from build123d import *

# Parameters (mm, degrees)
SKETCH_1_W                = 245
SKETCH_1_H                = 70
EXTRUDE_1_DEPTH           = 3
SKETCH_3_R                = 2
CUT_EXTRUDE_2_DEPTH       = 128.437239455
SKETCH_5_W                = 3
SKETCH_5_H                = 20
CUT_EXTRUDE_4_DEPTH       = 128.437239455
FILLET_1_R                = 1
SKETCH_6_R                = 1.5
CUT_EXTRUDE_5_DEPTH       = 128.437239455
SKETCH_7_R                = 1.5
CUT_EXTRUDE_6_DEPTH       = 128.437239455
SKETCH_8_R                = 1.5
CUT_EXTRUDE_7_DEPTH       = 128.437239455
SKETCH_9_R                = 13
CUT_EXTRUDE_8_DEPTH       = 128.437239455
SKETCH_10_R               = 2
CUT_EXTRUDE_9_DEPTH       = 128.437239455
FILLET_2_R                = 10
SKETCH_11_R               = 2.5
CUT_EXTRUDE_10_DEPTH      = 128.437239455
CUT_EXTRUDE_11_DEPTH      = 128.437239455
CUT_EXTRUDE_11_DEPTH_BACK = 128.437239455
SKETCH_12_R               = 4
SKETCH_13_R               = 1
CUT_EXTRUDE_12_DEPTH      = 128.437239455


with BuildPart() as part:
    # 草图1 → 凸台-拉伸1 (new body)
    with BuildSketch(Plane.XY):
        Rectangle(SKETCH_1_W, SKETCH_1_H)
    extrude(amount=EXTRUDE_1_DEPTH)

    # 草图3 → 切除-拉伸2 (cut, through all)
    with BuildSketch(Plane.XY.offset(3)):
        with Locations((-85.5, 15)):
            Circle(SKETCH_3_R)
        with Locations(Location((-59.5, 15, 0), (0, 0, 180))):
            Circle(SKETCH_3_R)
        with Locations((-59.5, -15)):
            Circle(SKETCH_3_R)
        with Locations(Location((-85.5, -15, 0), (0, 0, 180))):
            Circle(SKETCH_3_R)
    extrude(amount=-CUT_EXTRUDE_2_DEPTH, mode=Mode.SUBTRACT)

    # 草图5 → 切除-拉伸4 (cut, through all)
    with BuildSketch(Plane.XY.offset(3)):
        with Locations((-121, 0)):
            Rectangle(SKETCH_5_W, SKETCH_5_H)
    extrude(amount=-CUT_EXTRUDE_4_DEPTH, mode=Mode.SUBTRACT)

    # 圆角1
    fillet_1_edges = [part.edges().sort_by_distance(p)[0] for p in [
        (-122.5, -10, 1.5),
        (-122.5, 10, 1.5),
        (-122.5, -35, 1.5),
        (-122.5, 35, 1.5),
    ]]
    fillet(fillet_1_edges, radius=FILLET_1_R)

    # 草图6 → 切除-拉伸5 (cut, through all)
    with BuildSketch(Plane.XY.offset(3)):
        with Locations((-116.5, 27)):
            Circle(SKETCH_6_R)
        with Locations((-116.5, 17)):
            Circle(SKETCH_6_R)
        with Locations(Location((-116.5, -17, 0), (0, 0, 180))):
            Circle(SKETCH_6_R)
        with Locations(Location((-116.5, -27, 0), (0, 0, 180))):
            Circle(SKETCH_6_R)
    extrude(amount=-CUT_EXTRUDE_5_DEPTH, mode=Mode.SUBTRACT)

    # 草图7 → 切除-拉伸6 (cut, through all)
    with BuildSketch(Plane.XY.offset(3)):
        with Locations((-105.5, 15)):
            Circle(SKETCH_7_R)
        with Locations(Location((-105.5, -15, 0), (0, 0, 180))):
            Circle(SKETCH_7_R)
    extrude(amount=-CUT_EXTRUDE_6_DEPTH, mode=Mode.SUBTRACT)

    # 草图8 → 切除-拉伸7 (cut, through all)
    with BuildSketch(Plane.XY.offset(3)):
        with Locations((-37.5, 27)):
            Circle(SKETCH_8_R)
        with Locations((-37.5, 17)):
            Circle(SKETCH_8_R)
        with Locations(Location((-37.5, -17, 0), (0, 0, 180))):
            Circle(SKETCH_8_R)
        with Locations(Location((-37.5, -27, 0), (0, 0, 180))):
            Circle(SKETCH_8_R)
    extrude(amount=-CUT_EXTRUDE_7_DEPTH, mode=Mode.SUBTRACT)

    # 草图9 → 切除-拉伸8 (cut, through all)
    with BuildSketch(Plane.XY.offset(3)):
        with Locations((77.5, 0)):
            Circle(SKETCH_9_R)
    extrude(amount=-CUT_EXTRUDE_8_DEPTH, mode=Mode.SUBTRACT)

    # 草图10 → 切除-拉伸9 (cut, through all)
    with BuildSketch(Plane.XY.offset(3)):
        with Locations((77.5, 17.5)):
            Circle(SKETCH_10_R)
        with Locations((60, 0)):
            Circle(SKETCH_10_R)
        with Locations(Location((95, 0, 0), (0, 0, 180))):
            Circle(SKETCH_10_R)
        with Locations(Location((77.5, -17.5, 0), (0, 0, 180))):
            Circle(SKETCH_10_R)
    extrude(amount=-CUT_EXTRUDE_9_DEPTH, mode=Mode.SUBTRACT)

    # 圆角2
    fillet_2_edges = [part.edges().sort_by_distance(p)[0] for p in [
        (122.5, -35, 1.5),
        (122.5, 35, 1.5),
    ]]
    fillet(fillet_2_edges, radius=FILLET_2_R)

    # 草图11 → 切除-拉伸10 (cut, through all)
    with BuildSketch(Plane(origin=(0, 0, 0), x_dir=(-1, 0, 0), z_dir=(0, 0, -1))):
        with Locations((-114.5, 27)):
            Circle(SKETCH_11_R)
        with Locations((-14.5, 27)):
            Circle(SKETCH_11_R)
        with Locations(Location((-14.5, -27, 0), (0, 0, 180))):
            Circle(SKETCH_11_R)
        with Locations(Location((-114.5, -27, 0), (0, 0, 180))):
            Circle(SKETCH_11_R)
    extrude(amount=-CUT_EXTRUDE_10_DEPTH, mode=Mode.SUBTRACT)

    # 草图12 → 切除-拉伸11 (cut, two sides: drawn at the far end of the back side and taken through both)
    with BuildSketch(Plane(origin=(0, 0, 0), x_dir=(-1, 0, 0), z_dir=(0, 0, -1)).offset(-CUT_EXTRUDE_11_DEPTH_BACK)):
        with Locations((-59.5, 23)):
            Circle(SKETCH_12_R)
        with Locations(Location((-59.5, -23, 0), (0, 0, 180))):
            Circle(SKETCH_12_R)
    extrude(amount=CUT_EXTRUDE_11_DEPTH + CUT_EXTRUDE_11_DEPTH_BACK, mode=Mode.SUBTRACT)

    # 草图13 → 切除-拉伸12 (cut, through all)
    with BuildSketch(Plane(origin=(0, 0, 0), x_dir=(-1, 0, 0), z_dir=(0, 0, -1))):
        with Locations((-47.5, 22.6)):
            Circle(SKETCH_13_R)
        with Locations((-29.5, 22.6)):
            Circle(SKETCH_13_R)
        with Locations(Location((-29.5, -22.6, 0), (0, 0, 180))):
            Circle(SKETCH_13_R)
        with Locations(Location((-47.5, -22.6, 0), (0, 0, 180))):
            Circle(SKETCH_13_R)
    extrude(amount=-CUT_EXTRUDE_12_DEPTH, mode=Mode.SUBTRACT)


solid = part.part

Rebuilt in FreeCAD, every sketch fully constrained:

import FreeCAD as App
import Part
import Sketcher
Q = App.Units.Quantity


def edges_at(feature, points):
    """Names of the edges that pass closest to the given points."""
    edges = feature.Shape.Edges
    near = lambda p: min(range(len(edges)), key=lambda i: edges[i].distToShape(Part.Vertex(*p))[0])
    return sorted({f"Edge{near(p) + 1}" for p in points})

doc = App.newDocument("Part")
params = doc.addObject("Spreadsheet::Sheet", "Params")
for row, (alias, value) in enumerate([
    ("sketch1_width", "245 mm"),
    ("sketch1_height", "70 mm"),
    ("pad1_length", "3 mm"),
    ("sketch2_diameter", "4 mm"),
    ("sketch3_width", "3 mm"),
    ("sketch3_height", "20 mm"),
    ("fillet_radius", "1 mm"),
    ("sketch4_diameter", "3 mm"),
    ("sketch5_diameter", "3 mm"),
    ("sketch6_diameter", "3 mm"),
    ("sketch7_diameter", "26 mm"),
    ("sketch8_diameter", "4 mm"),
    ("fillet2_radius", "10 mm"),
    ("sketch9_diameter", "5 mm"),
    ("sketch10_diameter", "8 mm"),
    ("sketch11_diameter", "2 mm"),
], start=1):
    params.set(f"A{row}", alias)
    params.set(f"B{row}", "=" + value)
    params.setAlias(f"B{row}", alias)

body = doc.addObject("PartDesign::Body", "Body")

# Sketch on XY plane
sketch1 = body.newObject("Sketcher::SketchObject", "Sketch")
sketch1.AttachmentSupport = (doc.getObject("XY_Plane"), [""])
sketch1.MapMode = "FlatFace"
sketch1.addGeometry(Part.LineSegment(App.Vector(-122.5, 35, 0), App.Vector(-122.5, -35, 0)), False)
sketch1.addGeometry(Part.LineSegment(App.Vector(-122.5, -35, 0), App.Vector(122.5, -35, 0)), False)
sketch1.addGeometry(Part.LineSegment(App.Vector(122.5, -35, 0), App.Vector(122.5, 35, 0)), False)
sketch1.addGeometry(Part.LineSegment(App.Vector(122.5, 35, 0), App.Vector(-122.5, 35, 0)), False)
sketch1.addConstraint(Sketcher.Constraint("Coincident", 0, 2, 1, 1))
sketch1.addConstraint(Sketcher.Constraint("Coincident", 1, 2, 2, 1))
sketch1.addConstraint(Sketcher.Constraint("Coincident", 2, 2, 3, 1))
sketch1.addConstraint(Sketcher.Constraint("Coincident", 3, 2, 0, 1))
sketch1.addConstraint(Sketcher.Constraint("Vertical", 0))
sketch1.addConstraint(Sketcher.Constraint("Horizontal", 1))
sketch1.addConstraint(Sketcher.Constraint("Vertical", 2))
sketch1.addConstraint(Sketcher.Constraint("Horizontal", 3))
sketch1.addConstraint(Sketcher.Constraint("Symmetric", 0, 2, 2, 2, -1, 1))
sketch1.addConstraint(Sketcher.Constraint("DistanceX", 1, 1, 1, 2, Q("245 mm")))
sketch1.addConstraint(Sketcher.Constraint("DistanceY", 0, 2, 0, 1, Q("70 mm")))
sketch1.setExpression("Constraints[9]", "Params.sketch1_width")
sketch1.setExpression("Constraints[10]", "Params.sketch1_height")
pad1 = body.newObject("PartDesign::Pad", "Pad")
pad1.Profile = sketch1
pad1.setExpression("Length", "Params.pad1_length")

# Sketch on XY plane
sketch2 = body.newObject("Sketcher::SketchObject", "Sketch001")
sketch2.AttachmentSupport = (doc.getObject("XY_Plane"), [""])
sketch2.MapMode = "FlatFace"
sketch2.AttachmentOffset = App.Placement(App.Vector(0, 0, 3), App.Rotation())
sketch2.addGeometry(Part.Circle(App.Vector(-85.5, 15, 0), App.Vector(0, 0, 1), 2), False)
sketch2.addGeometry(Part.Circle(App.Vector(-59.5, 15, 0), App.Vector(0, 0, 1), 2), False)
sketch2.addGeometry(Part.Circle(App.Vector(-59.5, -15, 0), App.Vector(0, 0, 1), 2), False)
sketch2.addGeometry(Part.Circle(App.Vector(-85.5, -15, 0), App.Vector(0, 0, 1), 2), False)
sketch2.addConstraint(Sketcher.Constraint("Equal", 0, 1))
sketch2.addConstraint(Sketcher.Constraint("Equal", 1, 2))
sketch2.addConstraint(Sketcher.Constraint("Equal", 2, 3))
sketch2.addConstraint(Sketcher.Constraint("Symmetric", 1, 3, 2, 3, -1))
sketch2.addConstraint(Sketcher.Constraint("Symmetric", 0, 3, 3, 3, -1))
sketch2.addConstraint(Sketcher.Constraint("Horizontal", 0, 3, 1, 3))
sketch2.addConstraint(Sketcher.Constraint("Diameter", 0, Q("4 mm")))
sketch2.addConstraint(Sketcher.Constraint("DistanceY", -1, 1, 0, 3, Q("15 mm")))
sketch2.addConstraint(Sketcher.Constraint("DistanceX", 0, 3, 1, 3, Q("26 mm")))
sketch2.addConstraint(Sketcher.Constraint("DistanceX", 0, 3, -1, 1, Q("85.5 mm")))
sketch2.setExpression("Constraints[6]", "Params.sketch2_diameter")
pocket1 = body.newObject("PartDesign::Pocket", "Pocket")
pocket1.Profile = sketch2
pocket1.Type = "ThroughAll"

# Sketch on XY plane
sketch3 = body.newObject("Sketcher::SketchObject", "Sketch002")
sketch3.AttachmentSupport = (doc.getObject("XY_Plane"), [""])
sketch3.MapMode = "FlatFace"
sketch3.AttachmentOffset = App.Placement(App.Vector(0, 0, 3), App.Rotation())
sketch3.addGeometry(Part.LineSegment(App.Vector(-122.5, 10, 0), App.Vector(-122.5, -10, 0)), False)
sketch3.addGeometry(Part.LineSegment(App.Vector(-122.5, -10, 0), App.Vector(-119.5, -10, 0)), False)
sketch3.addGeometry(Part.LineSegment(App.Vector(-119.5, -10, 0), App.Vector(-119.5, 10, 0)), False)
sketch3.addGeometry(Part.LineSegment(App.Vector(-119.5, 10, 0), App.Vector(-122.5, 10, 0)), False)
sketch3.addConstraint(Sketcher.Constraint("Coincident", 0, 2, 1, 1))
sketch3.addConstraint(Sketcher.Constraint("Coincident", 1, 2, 2, 1))
sketch3.addConstraint(Sketcher.Constraint("Coincident", 2, 2, 3, 1))
sketch3.addConstraint(Sketcher.Constraint("Coincident", 3, 2, 0, 1))
sketch3.addConstraint(Sketcher.Constraint("Vertical", 0))
sketch3.addConstraint(Sketcher.Constraint("Horizontal", 1))
sketch3.addConstraint(Sketcher.Constraint("Vertical", 2))
sketch3.addConstraint(Sketcher.Constraint("Horizontal", 3))
sketch3.addConstraint(Sketcher.Constraint("DistanceX", 1, 1, 1, 2, Q("3 mm")))
sketch3.addConstraint(Sketcher.Constraint("DistanceY", 0, 2, 0, 1, Q("20 mm")))
sketch3.addConstraint(Sketcher.Constraint("DistanceY", 0, 2, -1, 1, Q("10 mm")))
sketch3.addConstraint(Sketcher.Constraint("DistanceX", 0, 2, -1, 1, Q("122.5 mm")))
sketch3.setExpression("Constraints[8]", "Params.sketch3_width")
sketch3.setExpression("Constraints[9]", "Params.sketch3_height")
pocket2 = body.newObject("PartDesign::Pocket", "Pocket001")
pocket2.Profile = sketch3
pocket2.Type = "ThroughAll"
doc.recompute()

fillet = body.newObject("PartDesign::Fillet", "Fillet")
fillet.Base = (pocket2, edges_at(pocket2, [
    (-122.5, -10, 1.5),
    (-122.5, 10, 1.5),
    (-122.5, -35, 1.5),
    (-122.5, 35, 1.5),
]))
fillet.setExpression("Radius", "Params.fillet_radius")

# Sketch on XY plane
sketch4 = body.newObject("Sketcher::SketchObject", "Sketch003")
sketch4.AttachmentSupport = (doc.getObject("XY_Plane"), [""])
sketch4.MapMode = "FlatFace"
sketch4.AttachmentOffset = App.Placement(App.Vector(0, 0, 3), App.Rotation())
sketch4.addGeometry(Part.Circle(App.Vector(-116.5, 27, 0), App.Vector(0, 0, 1), 1.5), False)
sketch4.addGeometry(Part.Circle(App.Vector(-116.5, 17, 0), App.Vector(0, 0, 1), 1.5), False)
sketch4.addGeometry(Part.Circle(App.Vector(-116.5, -17, 0), App.Vector(0, 0, 1), 1.5), False)
sketch4.addGeometry(Part.Circle(App.Vector(-116.5, -27, 0), App.Vector(0, 0, 1), 1.5), False)
sketch4.addConstraint(Sketcher.Constraint("Equal", 0, 1))
sketch4.addConstraint(Sketcher.Constraint("Equal", 1, 2))
sketch4.addConstraint(Sketcher.Constraint("Equal", 2, 3))
sketch4.addConstraint(Sketcher.Constraint("Symmetric", 1, 3, 2, 3, -1))
sketch4.addConstraint(Sketcher.Constraint("Symmetric", 0, 3, 3, 3, -1))
sketch4.addConstraint(Sketcher.Constraint("Vertical", 0, 3, 1, 3))
sketch4.addConstraint(Sketcher.Constraint("Diameter", 0, Q("3 mm")))
sketch4.addConstraint(Sketcher.Constraint("DistanceY", -1, 1, 0, 3, Q("27 mm")))
sketch4.addConstraint(Sketcher.Constraint("DistanceY", -1, 1, 1, 3, Q("17 mm")))
sketch4.addConstraint(Sketcher.Constraint("DistanceX", 0, 3, -1, 1, Q("116.5 mm")))
sketch4.setExpression("Constraints[6]", "Params.sketch4_diameter")
pocket3 = body.newObject("PartDesign::Pocket", "Pocket002")
pocket3.Profile = sketch4
pocket3.Type = "ThroughAll"

# Sketch on XY plane
sketch5 = body.newObject("Sketcher::SketchObject", "Sketch004")
sketch5.AttachmentSupport = (doc.getObject("XY_Plane"), [""])
sketch5.MapMode = "FlatFace"
sketch5.AttachmentOffset = App.Placement(App.Vector(0, 0, 3), App.Rotation())
sketch5.addGeometry(Part.Circle(App.Vector(-105.5, 15, 0), App.Vector(0, 0, 1), 1.5), False)
sketch5.addGeometry(Part.Circle(App.Vector(-105.5, -15, 0), App.Vector(0, 0, 1), 1.5), False)
sketch5.addConstraint(Sketcher.Constraint("Equal", 0, 1))
sketch5.addConstraint(Sketcher.Constraint("Symmetric", 0, 3, 1, 3, -1))
sketch5.addConstraint(Sketcher.Constraint("Diameter", 0, Q("3 mm")))
sketch5.addConstraint(Sketcher.Constraint("DistanceY", -1, 1, 0, 3, Q("15 mm")))
sketch5.addConstraint(Sketcher.Constraint("DistanceX", 0, 3, -1, 1, Q("105.5 mm")))
sketch5.setExpression("Constraints[2]", "Params.sketch5_diameter")
pocket4 = body.newObject("PartDesign::Pocket", "Pocket003")
pocket4.Profile = sketch5
pocket4.Type = "ThroughAll"

# Sketch on XY plane
sketch6 = body.newObject("Sketcher::SketchObject", "Sketch005")
sketch6.AttachmentSupport = (doc.getObject("XY_Plane"), [""])
sketch6.MapMode = "FlatFace"
sketch6.AttachmentOffset = App.Placement(App.Vector(0, 0, 3), App.Rotation())
sketch6.addGeometry(Part.Circle(App.Vector(-37.5, 27, 0), App.Vector(0, 0, 1), 1.5), False)
sketch6.addGeometry(Part.Circle(App.Vector(-37.5, 17, 0), App.Vector(0, 0, 1), 1.5), False)
sketch6.addGeometry(Part.Circle(App.Vector(-37.5, -17, 0), App.Vector(0, 0, 1), 1.5), False)
sketch6.addGeometry(Part.Circle(App.Vector(-37.5, -27, 0), App.Vector(0, 0, 1), 1.5), False)
sketch6.addConstraint(Sketcher.Constraint("Equal", 0, 1))
sketch6.addConstraint(Sketcher.Constraint("Equal", 1, 2))
sketch6.addConstraint(Sketcher.Constraint("Equal", 2, 3))
sketch6.addConstraint(Sketcher.Constraint("Symmetric", 1, 3, 2, 3, -1))
sketch6.addConstraint(Sketcher.Constraint("Symmetric", 0, 3, 3, 3, -1))
sketch6.addConstraint(Sketcher.Constraint("Vertical", 0, 3, 1, 3))
sketch6.addConstraint(Sketcher.Constraint("Diameter", 0, Q("3 mm")))
sketch6.addConstraint(Sketcher.Constraint("DistanceY", -1, 1, 0, 3, Q("27 mm")))
sketch6.addConstraint(Sketcher.Constraint("DistanceY", -1, 1, 1, 3, Q("17 mm")))
sketch6.addConstraint(Sketcher.Constraint("DistanceX", 0, 3, -1, 1, Q("37.5 mm")))
sketch6.setExpression("Constraints[6]", "Params.sketch6_diameter")
pocket5 = body.newObject("PartDesign::Pocket", "Pocket004")
pocket5.Profile = sketch6
pocket5.Type = "ThroughAll"

# Sketch on XY plane
sketch7 = body.newObject("Sketcher::SketchObject", "Sketch006")
sketch7.AttachmentSupport = (doc.getObject("XY_Plane"), [""])
sketch7.MapMode = "FlatFace"
sketch7.AttachmentOffset = App.Placement(App.Vector(0, 0, 3), App.Rotation())
sketch7.addGeometry(Part.Circle(App.Vector(77.5, 0, 0), App.Vector(0, 0, 1), 13), False)
sketch7.addConstraint(Sketcher.Constraint("PointOnObject", 0, 3, -1))
sketch7.addConstraint(Sketcher.Constraint("Diameter", 0, Q("26 mm")))
sketch7.addConstraint(Sketcher.Constraint("DistanceX", -1, 1, 0, 3, Q("77.5 mm")))
sketch7.setExpression("Constraints[1]", "Params.sketch7_diameter")
pocket6 = body.newObject("PartDesign::Pocket", "Pocket005")
pocket6.Profile = sketch7
pocket6.Type = "ThroughAll"

# Sketch on XY plane
sketch8 = body.newObject("Sketcher::SketchObject", "Sketch007")
sketch8.AttachmentSupport = (doc.getObject("XY_Plane"), [""])
sketch8.MapMode = "FlatFace"
sketch8.AttachmentOffset = App.Placement(App.Vector(0, 0, 3), App.Rotation())
sketch8.addGeometry(Part.Circle(App.Vector(77.5, 17.5, 0), App.Vector(0, 0, 1), 2), False)
sketch8.addGeometry(Part.Circle(App.Vector(60, 0, 0), App.Vector(0, 0, 1), 2), False)
sketch8.addGeometry(Part.Circle(App.Vector(95, 0, 0), App.Vector(0, 0, 1), 2), False)
sketch8.addGeometry(Part.Circle(App.Vector(77.5, -17.5, 0), App.Vector(0, 0, 1), 2), False)
sketch8.addConstraint(Sketcher.Constraint("Equal", 0, 1))
sketch8.addConstraint(Sketcher.Constraint("Equal", 1, 2))
sketch8.addConstraint(Sketcher.Constraint("Equal", 2, 3))
sketch8.addConstraint(Sketcher.Constraint("Symmetric", 0, 3, 3, 3, -1))
sketch8.addConstraint(Sketcher.Constraint("PointOnObject", 1, 3, -1))
sketch8.addConstraint(Sketcher.Constraint("PointOnObject", 2, 3, -1))
sketch8.addConstraint(Sketcher.Constraint("Diameter", 0, Q("4 mm")))
sketch8.addConstraint(Sketcher.Constraint("DistanceX", -1, 1, 1, 3, Q("60 mm")))
sketch8.addConstraint(Sketcher.Constraint("DistanceX", -1, 1, 2, 3, Q("95 mm")))
sketch8.addConstraint(Sketcher.Constraint("DistanceY", 3, 3, 0, 3, Q("35 mm")))
sketch8.addConstraint(Sketcher.Constraint("DistanceX", -1, 1, 0, 3, Q("77.5 mm")))
sketch8.setExpression("Constraints[6]", "Params.sketch8_diameter")
pocket7 = body.newObject("PartDesign::Pocket", "Pocket006")
pocket7.Profile = sketch8
pocket7.Type = "ThroughAll"
doc.recompute()

fillet2 = body.newObject("PartDesign::Fillet", "Fillet001")
fillet2.Base = (pocket7, edges_at(pocket7, [(122.5, -35, 1.5), (122.5, 35, 1.5)]))
fillet2.setExpression("Radius", "Params.fillet2_radius")

# Sketch on XY plane
sketch9 = body.newObject("Sketcher::SketchObject", "Sketch008")
sketch9.AttachmentSupport = (doc.getObject("XY_Plane"), [""])
sketch9.MapMode = "FlatFace"
sketch9.addGeometry(Part.Circle(App.Vector(114.5, 27, 0), App.Vector(0, 0, 1), 2.5), False)
sketch9.addGeometry(Part.Circle(App.Vector(14.5, 27, 0), App.Vector(0, 0, 1), 2.5), False)
sketch9.addGeometry(Part.Circle(App.Vector(14.5, -27, 0), App.Vector(0, 0, 1), 2.5), False)
sketch9.addGeometry(Part.Circle(App.Vector(114.5, -27, 0), App.Vector(0, 0, 1), 2.5), False)
sketch9.addConstraint(Sketcher.Constraint("Equal", 0, 1))
sketch9.addConstraint(Sketcher.Constraint("Equal", 1, 2))
sketch9.addConstraint(Sketcher.Constraint("Equal", 2, 3))
sketch9.addConstraint(Sketcher.Constraint("Symmetric", 1, 3, 2, 3, -1))
sketch9.addConstraint(Sketcher.Constraint("Symmetric", 0, 3, 3, 3, -1))
sketch9.addConstraint(Sketcher.Constraint("Horizontal", 0, 3, 1, 3))
sketch9.addConstraint(Sketcher.Constraint("Diameter", 0, Q("5 mm")))
sketch9.addConstraint(Sketcher.Constraint("DistanceY", -1, 1, 0, 3, Q("27 mm")))
sketch9.addConstraint(Sketcher.Constraint("DistanceX", 1, 3, 0, 3, Q("100 mm")))
sketch9.addConstraint(Sketcher.Constraint("DistanceX", -1, 1, 0, 3, Q("114.5 mm")))
sketch9.setExpression("Constraints[6]", "Params.sketch9_diameter")
pocket8 = body.newObject("PartDesign::Pocket", "Pocket007")
pocket8.Profile = sketch9
pocket8.Type = "ThroughAll"
pocket8.Reversed = True

# Sketch on XY plane
sketch10 = body.newObject("Sketcher::SketchObject", "Sketch009")
sketch10.AttachmentSupport = (doc.getObject("XY_Plane"), [""])
sketch10.MapMode = "FlatFace"
sketch10.addGeometry(Part.Circle(App.Vector(59.5, 23, 0), App.Vector(0, 0, 1), 4), False)
sketch10.addGeometry(Part.Circle(App.Vector(59.5, -23, 0), App.Vector(0, 0, 1), 4), False)
sketch10.addConstraint(Sketcher.Constraint("Equal", 0, 1))
sketch10.addConstraint(Sketcher.Constraint("Symmetric", 0, 3, 1, 3, -1))
sketch10.addConstraint(Sketcher.Constraint("Diameter", 0, Q("8 mm")))
sketch10.addConstraint(Sketcher.Constraint("DistanceY", -1, 1, 0, 3, Q("23 mm")))
sketch10.addConstraint(Sketcher.Constraint("DistanceX", -1, 1, 0, 3, Q("59.5 mm")))
sketch10.setExpression("Constraints[2]", "Params.sketch10_diameter")
pocket9 = body.newObject("PartDesign::Pocket", "Pocket008")
pocket9.Profile = sketch10
pocket9.Type = "ThroughAll"
pocket9.Midplane = True

# Sketch on XY plane
sketch11 = body.newObject("Sketcher::SketchObject", "Sketch010")
sketch11.AttachmentSupport = (doc.getObject("XY_Plane"), [""])
sketch11.MapMode = "FlatFace"
sketch11.addGeometry(Part.Circle(App.Vector(47.5, 22.6, 0), App.Vector(0, 0, 1), 1), False)
sketch11.addGeometry(Part.Circle(App.Vector(29.5, 22.6, 0), App.Vector(0, 0, 1), 1), False)
sketch11.addGeometry(Part.Circle(App.Vector(29.5, -22.6, 0), App.Vector(0, 0, 1), 1), False)
sketch11.addGeometry(Part.Circle(App.Vector(47.5, -22.6, 0), App.Vector(0, 0, 1), 1), False)
sketch11.addConstraint(Sketcher.Constraint("Equal", 0, 1))
sketch11.addConstraint(Sketcher.Constraint("Equal", 1, 2))
sketch11.addConstraint(Sketcher.Constraint("Equal", 2, 3))
sketch11.addConstraint(Sketcher.Constraint("Symmetric", 1, 3, 2, 3, -1))
sketch11.addConstraint(Sketcher.Constraint("Symmetric", 0, 3, 3, 3, -1))
sketch11.addConstraint(Sketcher.Constraint("Horizontal", 0, 3, 1, 3))
sketch11.addConstraint(Sketcher.Constraint("Diameter", 0, Q("2 mm")))
sketch11.addConstraint(Sketcher.Constraint("DistanceX", 1, 3, 0, 3, Q("18 mm")))
sketch11.addConstraint(Sketcher.Constraint("DistanceX", -1, 1, 0, 3, Q("47.5 mm")))
sketch11.addConstraint(Sketcher.Constraint("DistanceY", -1, 1, 0, 3, Q("22.6 mm")))
sketch11.setExpression("Constraints[6]", "Params.sketch11_diameter")
pocket10 = body.newObject("PartDesign::Pocket", "Pocket009")
pocket10.Profile = sketch11
pocket10.Type = "ThroughAll"
pocket10.Reversed = True

doc.recompute()
